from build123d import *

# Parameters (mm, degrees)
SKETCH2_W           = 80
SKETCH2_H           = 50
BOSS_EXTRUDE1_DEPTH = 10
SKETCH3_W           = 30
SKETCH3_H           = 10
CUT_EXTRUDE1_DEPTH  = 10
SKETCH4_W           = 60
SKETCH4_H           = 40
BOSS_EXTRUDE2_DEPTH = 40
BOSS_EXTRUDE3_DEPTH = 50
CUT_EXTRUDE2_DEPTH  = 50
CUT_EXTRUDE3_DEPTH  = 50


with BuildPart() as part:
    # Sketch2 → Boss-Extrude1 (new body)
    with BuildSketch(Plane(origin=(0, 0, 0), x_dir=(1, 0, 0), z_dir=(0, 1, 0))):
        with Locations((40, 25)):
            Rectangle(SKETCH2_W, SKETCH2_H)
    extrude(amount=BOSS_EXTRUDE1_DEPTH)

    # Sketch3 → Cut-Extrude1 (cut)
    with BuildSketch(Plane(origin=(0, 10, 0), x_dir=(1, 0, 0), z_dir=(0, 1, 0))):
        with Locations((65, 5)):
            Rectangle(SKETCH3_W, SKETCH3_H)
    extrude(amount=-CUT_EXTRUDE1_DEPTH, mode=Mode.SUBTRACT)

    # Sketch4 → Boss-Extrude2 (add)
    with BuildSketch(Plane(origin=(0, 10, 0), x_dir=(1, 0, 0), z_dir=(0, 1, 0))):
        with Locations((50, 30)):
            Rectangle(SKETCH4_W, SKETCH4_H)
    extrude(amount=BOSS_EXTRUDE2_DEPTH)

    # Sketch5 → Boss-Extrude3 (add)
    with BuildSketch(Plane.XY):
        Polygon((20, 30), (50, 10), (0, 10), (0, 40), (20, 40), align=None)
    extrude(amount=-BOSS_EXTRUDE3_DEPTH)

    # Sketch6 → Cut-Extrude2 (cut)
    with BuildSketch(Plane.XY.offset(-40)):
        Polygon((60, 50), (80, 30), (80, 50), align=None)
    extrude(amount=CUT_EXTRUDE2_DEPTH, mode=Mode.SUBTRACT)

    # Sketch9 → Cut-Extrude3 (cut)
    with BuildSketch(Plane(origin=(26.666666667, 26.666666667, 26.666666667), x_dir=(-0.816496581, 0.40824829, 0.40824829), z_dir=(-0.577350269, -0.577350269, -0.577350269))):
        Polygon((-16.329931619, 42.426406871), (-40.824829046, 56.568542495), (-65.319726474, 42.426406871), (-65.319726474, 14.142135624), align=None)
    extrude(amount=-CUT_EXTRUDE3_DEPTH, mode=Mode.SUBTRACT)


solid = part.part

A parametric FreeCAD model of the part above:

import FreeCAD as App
import Part
import Sketcher

V = App.Vector
Q = App.Units.Quantity


def add_polygon(sketch, points):
    """Adds a closed chain of lines whose ends are joined by coincident constraints."""
    first, n = sketch.GeometryCount, len(points)
    for a, b in zip(points, points[1:] + points[:1]):
        sketch.addGeometry(Part.LineSegment(App.Vector(*a, 0), App.Vector(*b, 0)), False)
    for i in range(n):
        sketch.addConstraint(Sketcher.Constraint("Coincident", first + i, 2, first + (i + 1) % n, 1))

doc = App.newDocument("Part")
body = doc.addObject("PartDesign::Body", "Body")

# Sketch on XZ plane
sketch1 = body.newObject("Sketcher::SketchObject", "Sketch")
sketch1.AttachmentSupport = (doc.getObject("XZ_Plane"), [""])
sketch1.MapMode = "FlatFace"
add_polygon(sketch1, [(0, -50), (0, 0), (80, 0), (80, -50)])  # lines 0-3
sketch1.addConstraint([
    Sketcher.Constraint("Vertical", 0),
    Sketcher.Constraint("Horizontal", 1),
    Sketcher.Constraint("Vertical", 2),
    Sketcher.Constraint("Horizontal", 3),
    Sketcher.Constraint("Coincident", 0, 2, -1, 1),
    Sketcher.Constraint("DistanceX", 1, 1, 1, 2, 80.0),
    Sketcher.Constraint("DistanceY", 0, 1, 0, 2, 50.0),
])
pad1 = body.newObject("PartDesign::Pad", "Pad")
pad1.Profile = sketch1
pad1.Length = 10
pad1.Reversed = True

# Sketch on XZ plane
sketch2 = body.newObject("Sketcher::SketchObject", "Sketch001")
sketch2.AttachmentSupport = (doc.getObject("XZ_Plane"), [""])
sketch2.MapMode = "FlatFace"
sketch2.AttachmentOffset = App.Placement(V(0, 0, -10), App.Rotation())
add_polygon(sketch2, [(50, -10), (50, 0), (80, 0), (80, -10)])  # lines 0-3
sketch2.addConstraint([
    Sketcher.Constraint("Vertical", 0),
    Sketcher.Constraint("Horizontal", 1),
    Sketcher.Constraint("Vertical", 2),
    Sketcher.Constraint("Horizontal", 3),
    Sketcher.Constraint("PointOnObject", 0, 2, -1),
    Sketcher.Constraint("DistanceX", 1, 1, 1, 2, 30.0),
    Sketcher.Constraint("DistanceY", 0, 1, 0, 2, 10.0),
    Sketcher.Constraint("DistanceX", -1, 1, 0, 2, 50.0),
])
pocket1 = body.newObject("PartDesign::Pocket", "Pocket")
pocket1.Profile = sketch2
pocket1.Length = 10
pocket1.Reversed = True

# Sketch on XZ plane
sketch3 = body.newObject("Sketcher::SketchObject", "Sketch002")
sketch3.AttachmentSupport = (doc.getObject("XZ_Plane"), [""])
sketch3.MapMode = "FlatFace"
sketch3.AttachmentOffset = App.Placement(V(0, 0, -10), App.Rotation())
add_polygon(sketch3, [(20, -50), (20, -10), (80, -10), (80, -50)])  # lines 0-3
sketch3.addConstraint([
    Sketcher.Constraint("Vertical", 0),
    Sketcher.Constraint("Horizontal", 1),
    Sketcher.Constraint("Vertical", 2),
    Sketcher.Constraint("Horizontal", 3),
    Sketcher.Constraint("DistanceX", 1, 1, 1, 2, 60.0),
    Sketcher.Constraint("DistanceY", 0, 1, 0, 2, 40.0),
    Sketcher.Constraint("DistanceX", -1, 1, 0, 2, 20.0),
    Sketcher.Constraint("DistanceY", 0, 2, -1, 1, 10.0),
])
pad2 = body.newObject("PartDesign::Pad", "Pad001")
pad2.Profile = sketch3
pad2.Length = 40
pad2.Reversed = True

# Sketch on XY plane
sketch4 = body.newObject("Sketcher::SketchObject", "Sketch003")
sketch4.AttachmentSupport = (doc.getObject("XY_Plane"), [""])
sketch4.MapMode = "FlatFace"
add_polygon(sketch4, [(50, 10), (20, 30), (20, 40), (0, 40), (0, 10)])  # lines 0-4
sketch4.addConstraint([
    Sketcher.Constraint("Vertical", 1),
    Sketcher.Constraint("Horizontal", 2),
    Sketcher.Constraint("Vertical", 3),
    Sketcher.Constraint("Horizontal", 4),
    Sketcher.Constraint("PointOnObject", 2, 2, -2),
    Sketcher.Constraint("DistanceX", 2, 2, 2, 1, 20.0),
    Sketcher.Constraint("DistanceX", 4, 1, 4, 2, 50.0),
    Sketcher.Constraint("DistanceY", 1, 1, 1, 2, 10.0),
    Sketcher.Constraint("DistanceY", 3, 2, 3, 1, 30.0),
    Sketcher.Constraint("DistanceY", -1, 1, 0, 2, 30.0),
])
pad3 = body.newObject("PartDesign::Pad", "Pad002")
pad3.Profile = sketch4
pad3.Length = 50
pad3.Reversed = True

# Sketch on XY plane
sketch5 = body.newObject("Sketcher::SketchObject", "Sketch004")
sketch5.AttachmentSupport = (doc.getObject("XY_Plane"), [""])
sketch5.MapMode = "FlatFace"
sketch5.AttachmentOffset = App.Placement(V(0, 0, -40), App.Rotation())
add_polygon(sketch5, [(60, 50), (80, 30), (80, 50)])  # lines 0-2
sketch5.addConstraint([
    Sketcher.Constraint("Vertical", 1),
    Sketcher.Constraint("Horizontal", 2),
    Sketcher.Constraint("Equal", 2, 1),
    Sketcher.Constraint("DistanceX", 2, 2, 2, 1, 20.0),
    Sketcher.Constraint("DistanceX", -1, 1, 0, 2, 80.0),
    Sketcher.Constraint("DistanceY", -1, 1, 0, 2, 30.0),
])
pocket2 = body.newObject("PartDesign::Pocket", "Pocket001")
pocket2.Profile = sketch5
pocket2.Length = 50
pocket2.Reversed = True

# Sketch on an angled plane
sketch6 = body.newObject("Sketcher::SketchObject", "Sketch005")
sketch6.Placement = App.Placement(V(26.666667, 26.666667, 26.666667), App.Rotation(V(-0.816496581, 0.40824829, 0.40824829), V(0, 0.707106781, -0.707106781), V(-0.577350269, -0.577350269, -0.577350269), "ZXY"))
add_polygon(sketch6, [(-16, 42), (-41, 57), (-65, 42), (-65, 14)])  # lines 0-3
sketch6.addConstraint([
    Sketcher.Constraint("Vertical", 2),
    Sketcher.Constraint("Parallel", 1, 3),
    Sketcher.Constraint("Horizontal", 1, 2, 3, 2),
    Sketcher.Constraint("Equal", 0, 1),
    Sketcher.Constraint("Angle", 0, Q("150 deg")),
    Sketcher.Constraint("DistanceY", 2, 2, 2, 1, 28.284271),
    Sketcher.Constraint("DistanceX", 0, 2, -1, 1, 40.824829),
    Sketcher.Constraint("DistanceY", -1, 1, 0, 2, 56.568542),
])
pocket3 = body.newObject("PartDesign::Pocket", "Pocket002")
pocket3.Profile = sketch6
pocket3.Length = 50

doc.recompute()
